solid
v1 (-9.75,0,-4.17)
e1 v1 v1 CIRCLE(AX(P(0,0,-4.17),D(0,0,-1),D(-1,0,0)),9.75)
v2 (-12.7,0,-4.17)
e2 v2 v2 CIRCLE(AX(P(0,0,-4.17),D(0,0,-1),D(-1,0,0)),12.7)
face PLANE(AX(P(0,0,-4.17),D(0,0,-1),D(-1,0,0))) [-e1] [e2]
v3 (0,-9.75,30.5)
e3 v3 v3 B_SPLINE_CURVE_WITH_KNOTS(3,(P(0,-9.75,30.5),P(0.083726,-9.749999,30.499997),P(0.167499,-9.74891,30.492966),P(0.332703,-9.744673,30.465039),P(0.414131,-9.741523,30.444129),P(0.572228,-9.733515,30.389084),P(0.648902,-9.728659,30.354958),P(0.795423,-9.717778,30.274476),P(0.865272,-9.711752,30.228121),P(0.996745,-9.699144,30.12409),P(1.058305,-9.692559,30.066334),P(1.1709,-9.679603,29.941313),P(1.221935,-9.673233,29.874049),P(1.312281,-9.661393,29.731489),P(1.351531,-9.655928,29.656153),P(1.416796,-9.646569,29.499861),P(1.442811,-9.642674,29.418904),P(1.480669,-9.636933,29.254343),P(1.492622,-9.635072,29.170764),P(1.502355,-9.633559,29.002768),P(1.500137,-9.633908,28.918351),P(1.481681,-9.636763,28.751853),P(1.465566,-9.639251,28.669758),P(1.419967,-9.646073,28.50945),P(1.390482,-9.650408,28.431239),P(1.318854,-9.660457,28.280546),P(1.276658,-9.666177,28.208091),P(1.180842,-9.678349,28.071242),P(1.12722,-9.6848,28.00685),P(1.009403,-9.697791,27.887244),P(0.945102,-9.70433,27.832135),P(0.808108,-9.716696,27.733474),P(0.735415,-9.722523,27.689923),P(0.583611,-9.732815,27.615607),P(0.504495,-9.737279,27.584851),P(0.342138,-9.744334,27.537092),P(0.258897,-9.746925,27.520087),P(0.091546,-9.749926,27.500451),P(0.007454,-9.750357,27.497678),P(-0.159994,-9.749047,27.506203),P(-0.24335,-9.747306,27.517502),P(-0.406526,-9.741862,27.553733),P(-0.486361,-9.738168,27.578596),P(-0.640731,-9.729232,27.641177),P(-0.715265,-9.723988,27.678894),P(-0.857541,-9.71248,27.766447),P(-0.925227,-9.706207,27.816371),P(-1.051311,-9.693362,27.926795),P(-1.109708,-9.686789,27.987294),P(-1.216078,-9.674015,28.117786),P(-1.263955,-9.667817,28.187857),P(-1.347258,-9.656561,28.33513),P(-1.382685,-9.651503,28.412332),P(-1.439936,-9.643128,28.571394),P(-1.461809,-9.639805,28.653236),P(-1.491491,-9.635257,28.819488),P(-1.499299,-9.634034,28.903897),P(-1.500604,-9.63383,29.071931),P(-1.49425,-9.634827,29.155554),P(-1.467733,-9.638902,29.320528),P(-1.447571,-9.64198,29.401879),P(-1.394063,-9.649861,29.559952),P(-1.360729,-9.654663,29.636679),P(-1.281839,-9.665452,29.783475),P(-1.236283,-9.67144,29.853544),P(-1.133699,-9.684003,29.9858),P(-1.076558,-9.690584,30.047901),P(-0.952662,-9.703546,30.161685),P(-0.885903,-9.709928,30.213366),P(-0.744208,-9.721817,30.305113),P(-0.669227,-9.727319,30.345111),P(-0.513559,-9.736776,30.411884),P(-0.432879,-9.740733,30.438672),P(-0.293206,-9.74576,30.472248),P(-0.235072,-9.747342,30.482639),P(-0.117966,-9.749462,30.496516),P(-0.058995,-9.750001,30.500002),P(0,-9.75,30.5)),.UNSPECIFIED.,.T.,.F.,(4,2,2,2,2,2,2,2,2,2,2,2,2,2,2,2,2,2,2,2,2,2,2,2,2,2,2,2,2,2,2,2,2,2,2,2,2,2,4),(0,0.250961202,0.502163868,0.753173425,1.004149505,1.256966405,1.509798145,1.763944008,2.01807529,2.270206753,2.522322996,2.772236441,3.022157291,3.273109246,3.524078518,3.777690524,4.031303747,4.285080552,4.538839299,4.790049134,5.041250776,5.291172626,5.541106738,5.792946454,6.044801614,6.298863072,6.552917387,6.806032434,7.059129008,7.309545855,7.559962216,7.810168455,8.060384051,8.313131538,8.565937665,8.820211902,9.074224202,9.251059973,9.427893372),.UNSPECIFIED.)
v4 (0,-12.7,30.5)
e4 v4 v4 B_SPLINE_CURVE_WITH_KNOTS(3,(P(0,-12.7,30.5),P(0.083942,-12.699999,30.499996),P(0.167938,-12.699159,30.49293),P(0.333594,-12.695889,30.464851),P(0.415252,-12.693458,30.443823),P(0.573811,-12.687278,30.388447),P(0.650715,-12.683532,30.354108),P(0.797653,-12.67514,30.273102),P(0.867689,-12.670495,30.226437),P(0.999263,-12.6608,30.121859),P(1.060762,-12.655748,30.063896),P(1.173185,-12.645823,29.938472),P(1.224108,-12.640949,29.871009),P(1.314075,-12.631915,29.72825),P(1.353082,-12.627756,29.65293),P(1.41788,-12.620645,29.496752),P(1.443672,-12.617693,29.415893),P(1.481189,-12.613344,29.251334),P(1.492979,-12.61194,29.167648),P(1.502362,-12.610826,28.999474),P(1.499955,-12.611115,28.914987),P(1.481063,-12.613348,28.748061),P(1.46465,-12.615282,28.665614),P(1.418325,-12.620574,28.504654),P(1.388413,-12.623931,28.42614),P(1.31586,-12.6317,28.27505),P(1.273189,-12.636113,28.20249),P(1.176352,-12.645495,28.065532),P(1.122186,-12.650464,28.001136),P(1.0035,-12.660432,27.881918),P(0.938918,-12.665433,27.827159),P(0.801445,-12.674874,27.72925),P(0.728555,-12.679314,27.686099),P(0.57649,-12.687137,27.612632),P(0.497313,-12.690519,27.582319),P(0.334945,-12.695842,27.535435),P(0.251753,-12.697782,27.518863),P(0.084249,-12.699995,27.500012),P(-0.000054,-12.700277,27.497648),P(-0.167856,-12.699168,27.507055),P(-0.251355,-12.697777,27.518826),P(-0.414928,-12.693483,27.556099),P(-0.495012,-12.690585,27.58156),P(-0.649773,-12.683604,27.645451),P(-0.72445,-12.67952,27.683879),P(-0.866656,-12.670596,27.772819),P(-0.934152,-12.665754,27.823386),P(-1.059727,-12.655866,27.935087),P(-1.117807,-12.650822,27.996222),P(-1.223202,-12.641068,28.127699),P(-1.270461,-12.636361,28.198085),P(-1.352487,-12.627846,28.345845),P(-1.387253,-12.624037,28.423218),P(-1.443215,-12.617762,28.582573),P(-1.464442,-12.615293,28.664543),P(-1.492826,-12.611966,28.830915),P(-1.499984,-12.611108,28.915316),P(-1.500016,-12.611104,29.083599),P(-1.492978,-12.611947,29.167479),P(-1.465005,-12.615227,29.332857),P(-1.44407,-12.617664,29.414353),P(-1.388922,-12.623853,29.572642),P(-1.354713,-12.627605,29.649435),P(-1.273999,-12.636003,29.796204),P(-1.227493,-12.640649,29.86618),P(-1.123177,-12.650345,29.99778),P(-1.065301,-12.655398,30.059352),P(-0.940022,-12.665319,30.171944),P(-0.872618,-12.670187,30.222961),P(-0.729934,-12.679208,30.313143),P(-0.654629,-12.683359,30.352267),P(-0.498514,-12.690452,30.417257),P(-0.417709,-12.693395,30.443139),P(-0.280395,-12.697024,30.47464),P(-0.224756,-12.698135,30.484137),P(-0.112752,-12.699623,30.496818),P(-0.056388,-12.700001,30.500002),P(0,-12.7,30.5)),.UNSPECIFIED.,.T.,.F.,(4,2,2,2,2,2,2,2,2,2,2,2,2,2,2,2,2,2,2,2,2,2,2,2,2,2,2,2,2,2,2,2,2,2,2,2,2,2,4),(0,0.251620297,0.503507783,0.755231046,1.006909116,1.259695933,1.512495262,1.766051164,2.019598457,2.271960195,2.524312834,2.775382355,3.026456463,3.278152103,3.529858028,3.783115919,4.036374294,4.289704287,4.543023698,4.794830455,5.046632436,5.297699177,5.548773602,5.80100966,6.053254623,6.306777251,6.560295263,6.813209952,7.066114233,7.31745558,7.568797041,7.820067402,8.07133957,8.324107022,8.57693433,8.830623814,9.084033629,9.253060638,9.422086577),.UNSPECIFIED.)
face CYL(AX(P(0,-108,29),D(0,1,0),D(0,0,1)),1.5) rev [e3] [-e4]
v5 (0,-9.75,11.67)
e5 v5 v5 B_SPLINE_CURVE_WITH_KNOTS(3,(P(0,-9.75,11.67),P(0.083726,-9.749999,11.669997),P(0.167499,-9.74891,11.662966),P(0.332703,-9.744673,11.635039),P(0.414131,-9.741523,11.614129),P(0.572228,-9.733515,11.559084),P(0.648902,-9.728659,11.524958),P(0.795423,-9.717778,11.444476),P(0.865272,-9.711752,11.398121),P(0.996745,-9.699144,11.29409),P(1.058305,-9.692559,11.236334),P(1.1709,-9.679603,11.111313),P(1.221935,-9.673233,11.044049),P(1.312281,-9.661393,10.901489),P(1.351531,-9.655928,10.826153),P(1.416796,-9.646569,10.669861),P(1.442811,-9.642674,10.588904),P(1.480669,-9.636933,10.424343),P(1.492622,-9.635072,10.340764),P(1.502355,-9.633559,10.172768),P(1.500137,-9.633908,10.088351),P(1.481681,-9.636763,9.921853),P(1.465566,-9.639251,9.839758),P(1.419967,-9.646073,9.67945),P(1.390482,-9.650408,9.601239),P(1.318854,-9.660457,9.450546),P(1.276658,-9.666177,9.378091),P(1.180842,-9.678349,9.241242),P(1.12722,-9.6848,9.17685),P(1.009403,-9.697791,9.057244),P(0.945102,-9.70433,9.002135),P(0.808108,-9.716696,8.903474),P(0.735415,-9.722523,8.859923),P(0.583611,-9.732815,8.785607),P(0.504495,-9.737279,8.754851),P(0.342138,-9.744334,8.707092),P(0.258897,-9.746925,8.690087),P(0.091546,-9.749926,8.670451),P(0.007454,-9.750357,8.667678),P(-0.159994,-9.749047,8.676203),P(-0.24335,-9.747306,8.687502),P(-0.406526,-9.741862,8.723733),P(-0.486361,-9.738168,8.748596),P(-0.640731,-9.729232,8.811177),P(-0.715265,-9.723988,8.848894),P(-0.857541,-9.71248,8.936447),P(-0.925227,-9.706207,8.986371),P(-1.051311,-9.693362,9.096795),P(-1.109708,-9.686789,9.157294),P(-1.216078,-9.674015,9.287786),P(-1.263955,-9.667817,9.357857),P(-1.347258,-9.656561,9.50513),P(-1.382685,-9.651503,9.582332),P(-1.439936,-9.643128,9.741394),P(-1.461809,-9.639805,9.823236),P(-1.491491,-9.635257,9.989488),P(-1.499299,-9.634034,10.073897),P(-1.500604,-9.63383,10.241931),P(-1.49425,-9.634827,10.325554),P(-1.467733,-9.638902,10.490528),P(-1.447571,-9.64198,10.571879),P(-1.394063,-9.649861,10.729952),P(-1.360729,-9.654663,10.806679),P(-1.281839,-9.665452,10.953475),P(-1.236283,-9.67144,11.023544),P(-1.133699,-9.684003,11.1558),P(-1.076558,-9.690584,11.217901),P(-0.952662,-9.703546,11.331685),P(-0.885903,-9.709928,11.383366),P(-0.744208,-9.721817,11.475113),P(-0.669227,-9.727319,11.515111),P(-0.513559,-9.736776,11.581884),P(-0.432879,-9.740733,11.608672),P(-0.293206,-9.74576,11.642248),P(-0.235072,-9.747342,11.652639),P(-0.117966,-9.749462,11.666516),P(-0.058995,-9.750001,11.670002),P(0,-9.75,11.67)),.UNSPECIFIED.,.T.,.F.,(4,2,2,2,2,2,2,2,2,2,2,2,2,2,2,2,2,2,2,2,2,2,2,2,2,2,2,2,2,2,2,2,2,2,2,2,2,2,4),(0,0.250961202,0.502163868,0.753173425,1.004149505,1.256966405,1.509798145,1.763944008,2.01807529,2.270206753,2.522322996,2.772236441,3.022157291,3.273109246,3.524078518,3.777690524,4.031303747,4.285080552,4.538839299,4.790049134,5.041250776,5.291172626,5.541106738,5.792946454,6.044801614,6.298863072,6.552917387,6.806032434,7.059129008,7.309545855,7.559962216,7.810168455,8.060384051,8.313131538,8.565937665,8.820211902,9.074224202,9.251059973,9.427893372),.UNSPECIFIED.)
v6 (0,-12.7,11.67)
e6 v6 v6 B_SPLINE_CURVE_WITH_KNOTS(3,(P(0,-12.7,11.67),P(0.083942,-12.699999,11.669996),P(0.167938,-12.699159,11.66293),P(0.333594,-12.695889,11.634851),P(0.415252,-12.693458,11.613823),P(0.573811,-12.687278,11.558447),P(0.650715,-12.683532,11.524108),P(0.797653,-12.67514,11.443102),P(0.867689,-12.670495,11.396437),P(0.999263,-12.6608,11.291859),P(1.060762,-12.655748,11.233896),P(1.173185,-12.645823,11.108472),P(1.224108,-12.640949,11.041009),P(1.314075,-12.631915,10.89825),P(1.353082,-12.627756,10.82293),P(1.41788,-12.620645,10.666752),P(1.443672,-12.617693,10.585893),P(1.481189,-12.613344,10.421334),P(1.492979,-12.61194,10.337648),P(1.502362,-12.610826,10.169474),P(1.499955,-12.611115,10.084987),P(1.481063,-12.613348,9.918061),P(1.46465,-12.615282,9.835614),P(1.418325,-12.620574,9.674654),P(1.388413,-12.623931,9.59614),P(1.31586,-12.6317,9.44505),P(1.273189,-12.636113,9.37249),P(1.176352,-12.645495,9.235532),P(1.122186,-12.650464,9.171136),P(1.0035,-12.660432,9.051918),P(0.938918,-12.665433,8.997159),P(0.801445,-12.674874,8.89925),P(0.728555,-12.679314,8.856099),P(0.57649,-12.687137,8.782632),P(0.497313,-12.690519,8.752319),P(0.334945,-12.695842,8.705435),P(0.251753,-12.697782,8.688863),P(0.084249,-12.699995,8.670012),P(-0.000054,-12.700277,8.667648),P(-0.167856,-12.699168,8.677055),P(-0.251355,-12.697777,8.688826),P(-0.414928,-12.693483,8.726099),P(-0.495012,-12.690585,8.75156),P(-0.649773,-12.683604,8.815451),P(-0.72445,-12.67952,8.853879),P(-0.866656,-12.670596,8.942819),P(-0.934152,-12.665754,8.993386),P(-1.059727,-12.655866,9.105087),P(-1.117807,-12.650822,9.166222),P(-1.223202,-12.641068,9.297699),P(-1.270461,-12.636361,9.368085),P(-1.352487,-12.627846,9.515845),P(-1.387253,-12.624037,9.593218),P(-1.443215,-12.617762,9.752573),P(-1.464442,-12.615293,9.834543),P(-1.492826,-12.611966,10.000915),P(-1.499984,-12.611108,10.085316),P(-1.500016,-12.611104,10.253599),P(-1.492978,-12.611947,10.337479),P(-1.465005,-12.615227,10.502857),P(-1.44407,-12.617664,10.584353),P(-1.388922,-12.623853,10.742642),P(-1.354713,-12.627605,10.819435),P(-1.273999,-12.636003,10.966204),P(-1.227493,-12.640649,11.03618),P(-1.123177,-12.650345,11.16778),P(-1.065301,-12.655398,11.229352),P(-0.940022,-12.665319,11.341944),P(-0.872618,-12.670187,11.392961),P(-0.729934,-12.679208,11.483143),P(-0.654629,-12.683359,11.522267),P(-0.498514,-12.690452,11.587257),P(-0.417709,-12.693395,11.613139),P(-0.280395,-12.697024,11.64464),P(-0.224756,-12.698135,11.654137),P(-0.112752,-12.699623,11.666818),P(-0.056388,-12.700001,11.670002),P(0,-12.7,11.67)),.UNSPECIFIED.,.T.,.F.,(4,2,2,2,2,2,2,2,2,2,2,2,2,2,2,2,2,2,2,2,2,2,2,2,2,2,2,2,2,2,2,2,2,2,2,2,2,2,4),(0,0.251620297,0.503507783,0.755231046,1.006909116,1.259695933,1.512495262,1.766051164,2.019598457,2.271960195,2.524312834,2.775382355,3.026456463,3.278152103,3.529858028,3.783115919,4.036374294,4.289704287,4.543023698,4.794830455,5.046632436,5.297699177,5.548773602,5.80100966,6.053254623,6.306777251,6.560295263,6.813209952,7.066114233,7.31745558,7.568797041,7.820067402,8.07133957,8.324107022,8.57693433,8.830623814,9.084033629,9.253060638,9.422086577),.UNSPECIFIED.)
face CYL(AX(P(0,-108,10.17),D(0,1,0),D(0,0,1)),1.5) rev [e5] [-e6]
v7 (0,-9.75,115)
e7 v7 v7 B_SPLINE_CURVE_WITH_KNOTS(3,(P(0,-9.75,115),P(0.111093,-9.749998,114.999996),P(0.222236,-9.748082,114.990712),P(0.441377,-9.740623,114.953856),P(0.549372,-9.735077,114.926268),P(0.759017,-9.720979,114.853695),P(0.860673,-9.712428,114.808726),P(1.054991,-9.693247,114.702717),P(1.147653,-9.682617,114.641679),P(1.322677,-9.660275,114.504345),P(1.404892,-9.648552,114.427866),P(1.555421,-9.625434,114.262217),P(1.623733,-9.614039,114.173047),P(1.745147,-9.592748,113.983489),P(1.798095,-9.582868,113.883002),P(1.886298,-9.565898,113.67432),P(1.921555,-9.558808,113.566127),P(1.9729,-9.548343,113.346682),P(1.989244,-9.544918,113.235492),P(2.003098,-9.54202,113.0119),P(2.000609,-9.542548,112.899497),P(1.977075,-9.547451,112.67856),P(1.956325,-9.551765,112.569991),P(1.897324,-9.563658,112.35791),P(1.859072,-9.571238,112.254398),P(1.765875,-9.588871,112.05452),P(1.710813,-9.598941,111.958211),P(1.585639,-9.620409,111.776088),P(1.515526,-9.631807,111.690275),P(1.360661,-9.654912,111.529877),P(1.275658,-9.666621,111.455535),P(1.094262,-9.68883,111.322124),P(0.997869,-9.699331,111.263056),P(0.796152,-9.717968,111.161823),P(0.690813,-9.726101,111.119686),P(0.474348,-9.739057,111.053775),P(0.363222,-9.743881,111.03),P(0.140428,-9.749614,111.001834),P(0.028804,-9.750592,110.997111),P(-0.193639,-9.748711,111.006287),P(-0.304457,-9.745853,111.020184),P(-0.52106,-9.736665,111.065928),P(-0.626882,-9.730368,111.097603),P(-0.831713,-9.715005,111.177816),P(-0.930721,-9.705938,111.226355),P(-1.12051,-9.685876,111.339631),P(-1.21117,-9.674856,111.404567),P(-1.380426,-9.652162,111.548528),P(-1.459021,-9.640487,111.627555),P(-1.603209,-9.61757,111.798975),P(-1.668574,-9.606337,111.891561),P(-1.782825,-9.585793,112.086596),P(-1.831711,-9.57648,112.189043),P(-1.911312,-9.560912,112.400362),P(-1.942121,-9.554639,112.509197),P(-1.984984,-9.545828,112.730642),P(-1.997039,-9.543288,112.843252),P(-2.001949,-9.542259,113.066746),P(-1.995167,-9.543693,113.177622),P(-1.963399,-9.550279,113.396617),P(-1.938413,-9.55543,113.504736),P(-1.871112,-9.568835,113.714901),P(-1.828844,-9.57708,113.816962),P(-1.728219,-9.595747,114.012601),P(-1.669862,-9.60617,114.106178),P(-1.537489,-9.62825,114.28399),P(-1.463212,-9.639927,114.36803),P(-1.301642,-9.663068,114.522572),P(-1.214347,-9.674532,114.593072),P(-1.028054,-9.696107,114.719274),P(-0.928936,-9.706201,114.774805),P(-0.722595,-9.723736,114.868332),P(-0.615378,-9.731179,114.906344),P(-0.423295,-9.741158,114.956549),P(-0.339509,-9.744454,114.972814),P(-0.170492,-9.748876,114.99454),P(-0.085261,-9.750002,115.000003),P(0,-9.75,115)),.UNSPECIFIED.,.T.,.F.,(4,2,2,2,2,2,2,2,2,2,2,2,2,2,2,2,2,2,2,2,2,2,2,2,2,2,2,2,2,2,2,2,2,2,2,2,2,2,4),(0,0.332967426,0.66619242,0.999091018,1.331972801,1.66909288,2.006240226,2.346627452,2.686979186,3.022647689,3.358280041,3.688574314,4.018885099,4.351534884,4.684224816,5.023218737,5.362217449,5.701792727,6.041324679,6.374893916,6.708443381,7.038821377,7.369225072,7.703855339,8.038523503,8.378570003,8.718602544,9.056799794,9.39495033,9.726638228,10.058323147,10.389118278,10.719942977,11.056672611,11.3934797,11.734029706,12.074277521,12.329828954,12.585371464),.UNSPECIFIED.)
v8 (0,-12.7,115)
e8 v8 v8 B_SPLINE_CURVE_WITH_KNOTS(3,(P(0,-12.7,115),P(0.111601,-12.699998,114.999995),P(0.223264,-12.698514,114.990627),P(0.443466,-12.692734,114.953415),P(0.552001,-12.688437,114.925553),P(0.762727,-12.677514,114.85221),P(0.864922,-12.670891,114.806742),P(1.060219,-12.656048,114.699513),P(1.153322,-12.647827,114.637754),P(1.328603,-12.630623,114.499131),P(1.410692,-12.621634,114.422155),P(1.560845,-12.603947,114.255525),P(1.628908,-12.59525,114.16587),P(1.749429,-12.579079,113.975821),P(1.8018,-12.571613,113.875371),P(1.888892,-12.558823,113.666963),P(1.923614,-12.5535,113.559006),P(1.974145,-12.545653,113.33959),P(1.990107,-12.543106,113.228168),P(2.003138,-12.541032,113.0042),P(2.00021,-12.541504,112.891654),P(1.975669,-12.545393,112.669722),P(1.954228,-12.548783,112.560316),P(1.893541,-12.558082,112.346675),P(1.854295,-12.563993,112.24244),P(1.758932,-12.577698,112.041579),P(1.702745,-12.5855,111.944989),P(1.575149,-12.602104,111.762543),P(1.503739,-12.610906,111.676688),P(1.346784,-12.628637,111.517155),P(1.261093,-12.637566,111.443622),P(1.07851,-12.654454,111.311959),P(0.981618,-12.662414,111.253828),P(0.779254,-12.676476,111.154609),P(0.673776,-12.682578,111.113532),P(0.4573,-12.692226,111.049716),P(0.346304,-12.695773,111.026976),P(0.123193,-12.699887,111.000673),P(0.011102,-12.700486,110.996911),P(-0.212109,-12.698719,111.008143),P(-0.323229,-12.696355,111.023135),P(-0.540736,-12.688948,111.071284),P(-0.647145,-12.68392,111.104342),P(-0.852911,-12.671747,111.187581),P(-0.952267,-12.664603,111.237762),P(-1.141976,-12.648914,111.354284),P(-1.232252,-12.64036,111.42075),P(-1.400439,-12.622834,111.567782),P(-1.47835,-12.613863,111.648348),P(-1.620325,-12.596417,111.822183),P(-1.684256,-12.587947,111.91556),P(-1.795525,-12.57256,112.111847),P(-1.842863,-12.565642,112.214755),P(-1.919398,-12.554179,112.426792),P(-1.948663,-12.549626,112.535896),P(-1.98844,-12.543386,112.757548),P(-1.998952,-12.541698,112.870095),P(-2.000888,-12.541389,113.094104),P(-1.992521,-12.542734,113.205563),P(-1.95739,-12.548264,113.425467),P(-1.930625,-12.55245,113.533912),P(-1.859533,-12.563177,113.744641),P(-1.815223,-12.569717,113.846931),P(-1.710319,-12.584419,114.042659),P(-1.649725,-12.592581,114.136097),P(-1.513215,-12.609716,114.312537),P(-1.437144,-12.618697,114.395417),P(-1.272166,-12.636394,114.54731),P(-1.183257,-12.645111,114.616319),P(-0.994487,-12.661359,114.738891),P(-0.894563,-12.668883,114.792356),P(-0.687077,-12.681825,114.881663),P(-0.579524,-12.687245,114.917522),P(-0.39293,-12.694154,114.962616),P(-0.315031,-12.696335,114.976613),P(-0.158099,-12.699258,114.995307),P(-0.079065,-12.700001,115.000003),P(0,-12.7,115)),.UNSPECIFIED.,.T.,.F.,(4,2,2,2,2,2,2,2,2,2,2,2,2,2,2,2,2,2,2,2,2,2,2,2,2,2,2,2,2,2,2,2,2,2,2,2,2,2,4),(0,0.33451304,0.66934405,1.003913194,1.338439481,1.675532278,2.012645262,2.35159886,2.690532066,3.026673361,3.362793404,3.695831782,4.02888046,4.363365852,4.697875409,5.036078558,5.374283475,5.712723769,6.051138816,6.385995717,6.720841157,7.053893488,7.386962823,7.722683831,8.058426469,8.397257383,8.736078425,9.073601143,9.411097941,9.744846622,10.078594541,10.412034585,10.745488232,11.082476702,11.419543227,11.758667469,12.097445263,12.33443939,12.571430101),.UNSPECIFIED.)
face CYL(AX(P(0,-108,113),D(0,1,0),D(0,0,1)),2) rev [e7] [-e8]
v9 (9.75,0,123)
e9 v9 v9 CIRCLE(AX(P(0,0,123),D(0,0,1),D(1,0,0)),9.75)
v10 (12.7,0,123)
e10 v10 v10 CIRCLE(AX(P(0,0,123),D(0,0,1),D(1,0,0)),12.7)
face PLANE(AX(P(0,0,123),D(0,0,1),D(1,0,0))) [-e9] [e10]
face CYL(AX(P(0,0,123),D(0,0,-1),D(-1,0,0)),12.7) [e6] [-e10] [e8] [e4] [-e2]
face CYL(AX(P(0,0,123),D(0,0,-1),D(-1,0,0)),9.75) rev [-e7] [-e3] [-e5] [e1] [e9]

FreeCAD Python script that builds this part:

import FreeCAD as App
import Part
import Sketcher

V = App.Vector

doc = App.newDocument("Part")
params = doc.addObject("Spreadsheet::Sheet", "Params")
for row, (alias, value) in enumerate([
    ("sketch1_diameter", "25.4 mm"),
    ("sketch1_diameter2", "19.5 mm"),
    ("pad1_length", "123 mm"),
    ("sketch2_diameter", "3 mm"),
    ("sketch2_diameter2", "4 mm"),
    ("pocket1_length", "108 mm"),
    ("sketch3_diameter", "25.4 mm"),
    ("sketch3_diameter2", "19.5 mm"),
    ("pad2_length", "4.17 mm"),
], start=1):
    params.set(f"A{row}", alias)
    params.set(f"B{row}", "=" + value)
    params.setAlias(f"B{row}", alias)

body = doc.addObject("PartDesign::Body", "Body")

# Sketch on XY plane
sketch1 = body.newObject("Sketcher::SketchObject", "Sketch")
sketch1.AttachmentSupport = (doc.getObject("XY_Plane"), [""])
sketch1.MapMode = "FlatFace"
sketch1.addGeometry([
    Part.Circle(V(0, 0, 0), V(0, 0, 1), 13),
    Part.Circle(V(0, 0, 0), V(0, 0, 1), 10),
], False)
sketch1.addConstraint([
    Sketcher.Constraint("Coincident", 0, 3, -1, 1),
    Sketcher.Constraint("Coincident", 1, 3, -1, 1),
    Sketcher.Constraint("Diameter", 0, 25.4),
    Sketcher.Constraint("Diameter", 1, 19.5),
])
sketch1.setExpression("Constraints[2]", "Params.sketch1_diameter")
sketch1.setExpression("Constraints[3]", "Params.sketch1_diameter2")
pad1 = body.newObject("PartDesign::Pad", "Pad")
pad1.Profile = sketch1
pad1.setExpression("Length", "Params.pad1_length")

# Sketch on XZ plane
sketch2 = body.newObject("Sketcher::SketchObject", "Sketch001")
sketch2.AttachmentSupport = (doc.getObject("XZ_Plane"), [""])
sketch2.MapMode = "FlatFace"
sketch2.addGeometry([
    Part.Circle(V(0, 10.2, 0), V(0, 0, 1), 1.5),
    Part.Circle(V(0, 29, 0), V(0, 0, 1), 1.5),
    Part.Circle(V(0, 113, 0), V(0, 0, 1), 2),
], False)
sketch2.addConstraint([
    Sketcher.Constraint("Equal", 0, 1),
    Sketcher.Constraint("PointOnObject", 0, 3, -2),
    Sketcher.Constraint("PointOnObject", 1, 3, -2),
    Sketcher.Constraint("PointOnObject", 2, 3, -2),
    Sketcher.Constraint("Diameter", 0, 3.0),
    Sketcher.Constraint("Diameter", 2, 4.0),
    Sketcher.Constraint("DistanceY", -1, 1, 1, 3, 29.0),
    Sketcher.Constraint("DistanceY", -1, 1, 2, 3, 113.0),
    Sketcher.Constraint("DistanceY", -1, 1, 0, 3, 10.17),
])
sketch2.setExpression("Constraints[4]", "Params.sketch2_diameter")
sketch2.setExpression("Constraints[5]", "Params.sketch2_diameter2")
pocket1 = body.newObject("PartDesign::Pocket", "Pocket")
pocket1.Profile = sketch2
pocket1.setExpression("Length", "Params.pocket1_length")
pocket1.Reversed = True

# Sketch on XY plane
sketch3 = body.newObject("Sketcher::SketchObject", "Sketch002")
sketch3.AttachmentSupport = (doc.getObject("XY_Plane"), [""])
sketch3.MapMode = "FlatFace"
sketch3.AttachmentOffset = App.Placement(V(0, 0, -4.17), App.Rotation())
sketch3.addGeometry([
    Part.Circle(V(0, 0, 0), V(0, 0, 1), 13),
    Part.Circle(V(0, 0, 0), V(0, 0, 1), 10),
], False)
sketch3.addConstraint([
    Sketcher.Constraint("Coincident", 0, 3, -1, 1),
    Sketcher.Constraint("Coincident", 1, 3, -1, 1),
    Sketcher.Constraint("Diameter", 0, 25.4),
    Sketcher.Constraint("Diameter", 1, 19.5),
])
sketch3.setExpression("Constraints[2]", "Params.sketch3_diameter")
sketch3.setExpression("Constraints[3]", "Params.sketch3_diameter2")
pad2 = body.newObject("PartDesign::Pad", "Pad001")
pad2.Profile = sketch3
pad2.setExpression("Length", "Params.pad2_length")

doc.recompute()
